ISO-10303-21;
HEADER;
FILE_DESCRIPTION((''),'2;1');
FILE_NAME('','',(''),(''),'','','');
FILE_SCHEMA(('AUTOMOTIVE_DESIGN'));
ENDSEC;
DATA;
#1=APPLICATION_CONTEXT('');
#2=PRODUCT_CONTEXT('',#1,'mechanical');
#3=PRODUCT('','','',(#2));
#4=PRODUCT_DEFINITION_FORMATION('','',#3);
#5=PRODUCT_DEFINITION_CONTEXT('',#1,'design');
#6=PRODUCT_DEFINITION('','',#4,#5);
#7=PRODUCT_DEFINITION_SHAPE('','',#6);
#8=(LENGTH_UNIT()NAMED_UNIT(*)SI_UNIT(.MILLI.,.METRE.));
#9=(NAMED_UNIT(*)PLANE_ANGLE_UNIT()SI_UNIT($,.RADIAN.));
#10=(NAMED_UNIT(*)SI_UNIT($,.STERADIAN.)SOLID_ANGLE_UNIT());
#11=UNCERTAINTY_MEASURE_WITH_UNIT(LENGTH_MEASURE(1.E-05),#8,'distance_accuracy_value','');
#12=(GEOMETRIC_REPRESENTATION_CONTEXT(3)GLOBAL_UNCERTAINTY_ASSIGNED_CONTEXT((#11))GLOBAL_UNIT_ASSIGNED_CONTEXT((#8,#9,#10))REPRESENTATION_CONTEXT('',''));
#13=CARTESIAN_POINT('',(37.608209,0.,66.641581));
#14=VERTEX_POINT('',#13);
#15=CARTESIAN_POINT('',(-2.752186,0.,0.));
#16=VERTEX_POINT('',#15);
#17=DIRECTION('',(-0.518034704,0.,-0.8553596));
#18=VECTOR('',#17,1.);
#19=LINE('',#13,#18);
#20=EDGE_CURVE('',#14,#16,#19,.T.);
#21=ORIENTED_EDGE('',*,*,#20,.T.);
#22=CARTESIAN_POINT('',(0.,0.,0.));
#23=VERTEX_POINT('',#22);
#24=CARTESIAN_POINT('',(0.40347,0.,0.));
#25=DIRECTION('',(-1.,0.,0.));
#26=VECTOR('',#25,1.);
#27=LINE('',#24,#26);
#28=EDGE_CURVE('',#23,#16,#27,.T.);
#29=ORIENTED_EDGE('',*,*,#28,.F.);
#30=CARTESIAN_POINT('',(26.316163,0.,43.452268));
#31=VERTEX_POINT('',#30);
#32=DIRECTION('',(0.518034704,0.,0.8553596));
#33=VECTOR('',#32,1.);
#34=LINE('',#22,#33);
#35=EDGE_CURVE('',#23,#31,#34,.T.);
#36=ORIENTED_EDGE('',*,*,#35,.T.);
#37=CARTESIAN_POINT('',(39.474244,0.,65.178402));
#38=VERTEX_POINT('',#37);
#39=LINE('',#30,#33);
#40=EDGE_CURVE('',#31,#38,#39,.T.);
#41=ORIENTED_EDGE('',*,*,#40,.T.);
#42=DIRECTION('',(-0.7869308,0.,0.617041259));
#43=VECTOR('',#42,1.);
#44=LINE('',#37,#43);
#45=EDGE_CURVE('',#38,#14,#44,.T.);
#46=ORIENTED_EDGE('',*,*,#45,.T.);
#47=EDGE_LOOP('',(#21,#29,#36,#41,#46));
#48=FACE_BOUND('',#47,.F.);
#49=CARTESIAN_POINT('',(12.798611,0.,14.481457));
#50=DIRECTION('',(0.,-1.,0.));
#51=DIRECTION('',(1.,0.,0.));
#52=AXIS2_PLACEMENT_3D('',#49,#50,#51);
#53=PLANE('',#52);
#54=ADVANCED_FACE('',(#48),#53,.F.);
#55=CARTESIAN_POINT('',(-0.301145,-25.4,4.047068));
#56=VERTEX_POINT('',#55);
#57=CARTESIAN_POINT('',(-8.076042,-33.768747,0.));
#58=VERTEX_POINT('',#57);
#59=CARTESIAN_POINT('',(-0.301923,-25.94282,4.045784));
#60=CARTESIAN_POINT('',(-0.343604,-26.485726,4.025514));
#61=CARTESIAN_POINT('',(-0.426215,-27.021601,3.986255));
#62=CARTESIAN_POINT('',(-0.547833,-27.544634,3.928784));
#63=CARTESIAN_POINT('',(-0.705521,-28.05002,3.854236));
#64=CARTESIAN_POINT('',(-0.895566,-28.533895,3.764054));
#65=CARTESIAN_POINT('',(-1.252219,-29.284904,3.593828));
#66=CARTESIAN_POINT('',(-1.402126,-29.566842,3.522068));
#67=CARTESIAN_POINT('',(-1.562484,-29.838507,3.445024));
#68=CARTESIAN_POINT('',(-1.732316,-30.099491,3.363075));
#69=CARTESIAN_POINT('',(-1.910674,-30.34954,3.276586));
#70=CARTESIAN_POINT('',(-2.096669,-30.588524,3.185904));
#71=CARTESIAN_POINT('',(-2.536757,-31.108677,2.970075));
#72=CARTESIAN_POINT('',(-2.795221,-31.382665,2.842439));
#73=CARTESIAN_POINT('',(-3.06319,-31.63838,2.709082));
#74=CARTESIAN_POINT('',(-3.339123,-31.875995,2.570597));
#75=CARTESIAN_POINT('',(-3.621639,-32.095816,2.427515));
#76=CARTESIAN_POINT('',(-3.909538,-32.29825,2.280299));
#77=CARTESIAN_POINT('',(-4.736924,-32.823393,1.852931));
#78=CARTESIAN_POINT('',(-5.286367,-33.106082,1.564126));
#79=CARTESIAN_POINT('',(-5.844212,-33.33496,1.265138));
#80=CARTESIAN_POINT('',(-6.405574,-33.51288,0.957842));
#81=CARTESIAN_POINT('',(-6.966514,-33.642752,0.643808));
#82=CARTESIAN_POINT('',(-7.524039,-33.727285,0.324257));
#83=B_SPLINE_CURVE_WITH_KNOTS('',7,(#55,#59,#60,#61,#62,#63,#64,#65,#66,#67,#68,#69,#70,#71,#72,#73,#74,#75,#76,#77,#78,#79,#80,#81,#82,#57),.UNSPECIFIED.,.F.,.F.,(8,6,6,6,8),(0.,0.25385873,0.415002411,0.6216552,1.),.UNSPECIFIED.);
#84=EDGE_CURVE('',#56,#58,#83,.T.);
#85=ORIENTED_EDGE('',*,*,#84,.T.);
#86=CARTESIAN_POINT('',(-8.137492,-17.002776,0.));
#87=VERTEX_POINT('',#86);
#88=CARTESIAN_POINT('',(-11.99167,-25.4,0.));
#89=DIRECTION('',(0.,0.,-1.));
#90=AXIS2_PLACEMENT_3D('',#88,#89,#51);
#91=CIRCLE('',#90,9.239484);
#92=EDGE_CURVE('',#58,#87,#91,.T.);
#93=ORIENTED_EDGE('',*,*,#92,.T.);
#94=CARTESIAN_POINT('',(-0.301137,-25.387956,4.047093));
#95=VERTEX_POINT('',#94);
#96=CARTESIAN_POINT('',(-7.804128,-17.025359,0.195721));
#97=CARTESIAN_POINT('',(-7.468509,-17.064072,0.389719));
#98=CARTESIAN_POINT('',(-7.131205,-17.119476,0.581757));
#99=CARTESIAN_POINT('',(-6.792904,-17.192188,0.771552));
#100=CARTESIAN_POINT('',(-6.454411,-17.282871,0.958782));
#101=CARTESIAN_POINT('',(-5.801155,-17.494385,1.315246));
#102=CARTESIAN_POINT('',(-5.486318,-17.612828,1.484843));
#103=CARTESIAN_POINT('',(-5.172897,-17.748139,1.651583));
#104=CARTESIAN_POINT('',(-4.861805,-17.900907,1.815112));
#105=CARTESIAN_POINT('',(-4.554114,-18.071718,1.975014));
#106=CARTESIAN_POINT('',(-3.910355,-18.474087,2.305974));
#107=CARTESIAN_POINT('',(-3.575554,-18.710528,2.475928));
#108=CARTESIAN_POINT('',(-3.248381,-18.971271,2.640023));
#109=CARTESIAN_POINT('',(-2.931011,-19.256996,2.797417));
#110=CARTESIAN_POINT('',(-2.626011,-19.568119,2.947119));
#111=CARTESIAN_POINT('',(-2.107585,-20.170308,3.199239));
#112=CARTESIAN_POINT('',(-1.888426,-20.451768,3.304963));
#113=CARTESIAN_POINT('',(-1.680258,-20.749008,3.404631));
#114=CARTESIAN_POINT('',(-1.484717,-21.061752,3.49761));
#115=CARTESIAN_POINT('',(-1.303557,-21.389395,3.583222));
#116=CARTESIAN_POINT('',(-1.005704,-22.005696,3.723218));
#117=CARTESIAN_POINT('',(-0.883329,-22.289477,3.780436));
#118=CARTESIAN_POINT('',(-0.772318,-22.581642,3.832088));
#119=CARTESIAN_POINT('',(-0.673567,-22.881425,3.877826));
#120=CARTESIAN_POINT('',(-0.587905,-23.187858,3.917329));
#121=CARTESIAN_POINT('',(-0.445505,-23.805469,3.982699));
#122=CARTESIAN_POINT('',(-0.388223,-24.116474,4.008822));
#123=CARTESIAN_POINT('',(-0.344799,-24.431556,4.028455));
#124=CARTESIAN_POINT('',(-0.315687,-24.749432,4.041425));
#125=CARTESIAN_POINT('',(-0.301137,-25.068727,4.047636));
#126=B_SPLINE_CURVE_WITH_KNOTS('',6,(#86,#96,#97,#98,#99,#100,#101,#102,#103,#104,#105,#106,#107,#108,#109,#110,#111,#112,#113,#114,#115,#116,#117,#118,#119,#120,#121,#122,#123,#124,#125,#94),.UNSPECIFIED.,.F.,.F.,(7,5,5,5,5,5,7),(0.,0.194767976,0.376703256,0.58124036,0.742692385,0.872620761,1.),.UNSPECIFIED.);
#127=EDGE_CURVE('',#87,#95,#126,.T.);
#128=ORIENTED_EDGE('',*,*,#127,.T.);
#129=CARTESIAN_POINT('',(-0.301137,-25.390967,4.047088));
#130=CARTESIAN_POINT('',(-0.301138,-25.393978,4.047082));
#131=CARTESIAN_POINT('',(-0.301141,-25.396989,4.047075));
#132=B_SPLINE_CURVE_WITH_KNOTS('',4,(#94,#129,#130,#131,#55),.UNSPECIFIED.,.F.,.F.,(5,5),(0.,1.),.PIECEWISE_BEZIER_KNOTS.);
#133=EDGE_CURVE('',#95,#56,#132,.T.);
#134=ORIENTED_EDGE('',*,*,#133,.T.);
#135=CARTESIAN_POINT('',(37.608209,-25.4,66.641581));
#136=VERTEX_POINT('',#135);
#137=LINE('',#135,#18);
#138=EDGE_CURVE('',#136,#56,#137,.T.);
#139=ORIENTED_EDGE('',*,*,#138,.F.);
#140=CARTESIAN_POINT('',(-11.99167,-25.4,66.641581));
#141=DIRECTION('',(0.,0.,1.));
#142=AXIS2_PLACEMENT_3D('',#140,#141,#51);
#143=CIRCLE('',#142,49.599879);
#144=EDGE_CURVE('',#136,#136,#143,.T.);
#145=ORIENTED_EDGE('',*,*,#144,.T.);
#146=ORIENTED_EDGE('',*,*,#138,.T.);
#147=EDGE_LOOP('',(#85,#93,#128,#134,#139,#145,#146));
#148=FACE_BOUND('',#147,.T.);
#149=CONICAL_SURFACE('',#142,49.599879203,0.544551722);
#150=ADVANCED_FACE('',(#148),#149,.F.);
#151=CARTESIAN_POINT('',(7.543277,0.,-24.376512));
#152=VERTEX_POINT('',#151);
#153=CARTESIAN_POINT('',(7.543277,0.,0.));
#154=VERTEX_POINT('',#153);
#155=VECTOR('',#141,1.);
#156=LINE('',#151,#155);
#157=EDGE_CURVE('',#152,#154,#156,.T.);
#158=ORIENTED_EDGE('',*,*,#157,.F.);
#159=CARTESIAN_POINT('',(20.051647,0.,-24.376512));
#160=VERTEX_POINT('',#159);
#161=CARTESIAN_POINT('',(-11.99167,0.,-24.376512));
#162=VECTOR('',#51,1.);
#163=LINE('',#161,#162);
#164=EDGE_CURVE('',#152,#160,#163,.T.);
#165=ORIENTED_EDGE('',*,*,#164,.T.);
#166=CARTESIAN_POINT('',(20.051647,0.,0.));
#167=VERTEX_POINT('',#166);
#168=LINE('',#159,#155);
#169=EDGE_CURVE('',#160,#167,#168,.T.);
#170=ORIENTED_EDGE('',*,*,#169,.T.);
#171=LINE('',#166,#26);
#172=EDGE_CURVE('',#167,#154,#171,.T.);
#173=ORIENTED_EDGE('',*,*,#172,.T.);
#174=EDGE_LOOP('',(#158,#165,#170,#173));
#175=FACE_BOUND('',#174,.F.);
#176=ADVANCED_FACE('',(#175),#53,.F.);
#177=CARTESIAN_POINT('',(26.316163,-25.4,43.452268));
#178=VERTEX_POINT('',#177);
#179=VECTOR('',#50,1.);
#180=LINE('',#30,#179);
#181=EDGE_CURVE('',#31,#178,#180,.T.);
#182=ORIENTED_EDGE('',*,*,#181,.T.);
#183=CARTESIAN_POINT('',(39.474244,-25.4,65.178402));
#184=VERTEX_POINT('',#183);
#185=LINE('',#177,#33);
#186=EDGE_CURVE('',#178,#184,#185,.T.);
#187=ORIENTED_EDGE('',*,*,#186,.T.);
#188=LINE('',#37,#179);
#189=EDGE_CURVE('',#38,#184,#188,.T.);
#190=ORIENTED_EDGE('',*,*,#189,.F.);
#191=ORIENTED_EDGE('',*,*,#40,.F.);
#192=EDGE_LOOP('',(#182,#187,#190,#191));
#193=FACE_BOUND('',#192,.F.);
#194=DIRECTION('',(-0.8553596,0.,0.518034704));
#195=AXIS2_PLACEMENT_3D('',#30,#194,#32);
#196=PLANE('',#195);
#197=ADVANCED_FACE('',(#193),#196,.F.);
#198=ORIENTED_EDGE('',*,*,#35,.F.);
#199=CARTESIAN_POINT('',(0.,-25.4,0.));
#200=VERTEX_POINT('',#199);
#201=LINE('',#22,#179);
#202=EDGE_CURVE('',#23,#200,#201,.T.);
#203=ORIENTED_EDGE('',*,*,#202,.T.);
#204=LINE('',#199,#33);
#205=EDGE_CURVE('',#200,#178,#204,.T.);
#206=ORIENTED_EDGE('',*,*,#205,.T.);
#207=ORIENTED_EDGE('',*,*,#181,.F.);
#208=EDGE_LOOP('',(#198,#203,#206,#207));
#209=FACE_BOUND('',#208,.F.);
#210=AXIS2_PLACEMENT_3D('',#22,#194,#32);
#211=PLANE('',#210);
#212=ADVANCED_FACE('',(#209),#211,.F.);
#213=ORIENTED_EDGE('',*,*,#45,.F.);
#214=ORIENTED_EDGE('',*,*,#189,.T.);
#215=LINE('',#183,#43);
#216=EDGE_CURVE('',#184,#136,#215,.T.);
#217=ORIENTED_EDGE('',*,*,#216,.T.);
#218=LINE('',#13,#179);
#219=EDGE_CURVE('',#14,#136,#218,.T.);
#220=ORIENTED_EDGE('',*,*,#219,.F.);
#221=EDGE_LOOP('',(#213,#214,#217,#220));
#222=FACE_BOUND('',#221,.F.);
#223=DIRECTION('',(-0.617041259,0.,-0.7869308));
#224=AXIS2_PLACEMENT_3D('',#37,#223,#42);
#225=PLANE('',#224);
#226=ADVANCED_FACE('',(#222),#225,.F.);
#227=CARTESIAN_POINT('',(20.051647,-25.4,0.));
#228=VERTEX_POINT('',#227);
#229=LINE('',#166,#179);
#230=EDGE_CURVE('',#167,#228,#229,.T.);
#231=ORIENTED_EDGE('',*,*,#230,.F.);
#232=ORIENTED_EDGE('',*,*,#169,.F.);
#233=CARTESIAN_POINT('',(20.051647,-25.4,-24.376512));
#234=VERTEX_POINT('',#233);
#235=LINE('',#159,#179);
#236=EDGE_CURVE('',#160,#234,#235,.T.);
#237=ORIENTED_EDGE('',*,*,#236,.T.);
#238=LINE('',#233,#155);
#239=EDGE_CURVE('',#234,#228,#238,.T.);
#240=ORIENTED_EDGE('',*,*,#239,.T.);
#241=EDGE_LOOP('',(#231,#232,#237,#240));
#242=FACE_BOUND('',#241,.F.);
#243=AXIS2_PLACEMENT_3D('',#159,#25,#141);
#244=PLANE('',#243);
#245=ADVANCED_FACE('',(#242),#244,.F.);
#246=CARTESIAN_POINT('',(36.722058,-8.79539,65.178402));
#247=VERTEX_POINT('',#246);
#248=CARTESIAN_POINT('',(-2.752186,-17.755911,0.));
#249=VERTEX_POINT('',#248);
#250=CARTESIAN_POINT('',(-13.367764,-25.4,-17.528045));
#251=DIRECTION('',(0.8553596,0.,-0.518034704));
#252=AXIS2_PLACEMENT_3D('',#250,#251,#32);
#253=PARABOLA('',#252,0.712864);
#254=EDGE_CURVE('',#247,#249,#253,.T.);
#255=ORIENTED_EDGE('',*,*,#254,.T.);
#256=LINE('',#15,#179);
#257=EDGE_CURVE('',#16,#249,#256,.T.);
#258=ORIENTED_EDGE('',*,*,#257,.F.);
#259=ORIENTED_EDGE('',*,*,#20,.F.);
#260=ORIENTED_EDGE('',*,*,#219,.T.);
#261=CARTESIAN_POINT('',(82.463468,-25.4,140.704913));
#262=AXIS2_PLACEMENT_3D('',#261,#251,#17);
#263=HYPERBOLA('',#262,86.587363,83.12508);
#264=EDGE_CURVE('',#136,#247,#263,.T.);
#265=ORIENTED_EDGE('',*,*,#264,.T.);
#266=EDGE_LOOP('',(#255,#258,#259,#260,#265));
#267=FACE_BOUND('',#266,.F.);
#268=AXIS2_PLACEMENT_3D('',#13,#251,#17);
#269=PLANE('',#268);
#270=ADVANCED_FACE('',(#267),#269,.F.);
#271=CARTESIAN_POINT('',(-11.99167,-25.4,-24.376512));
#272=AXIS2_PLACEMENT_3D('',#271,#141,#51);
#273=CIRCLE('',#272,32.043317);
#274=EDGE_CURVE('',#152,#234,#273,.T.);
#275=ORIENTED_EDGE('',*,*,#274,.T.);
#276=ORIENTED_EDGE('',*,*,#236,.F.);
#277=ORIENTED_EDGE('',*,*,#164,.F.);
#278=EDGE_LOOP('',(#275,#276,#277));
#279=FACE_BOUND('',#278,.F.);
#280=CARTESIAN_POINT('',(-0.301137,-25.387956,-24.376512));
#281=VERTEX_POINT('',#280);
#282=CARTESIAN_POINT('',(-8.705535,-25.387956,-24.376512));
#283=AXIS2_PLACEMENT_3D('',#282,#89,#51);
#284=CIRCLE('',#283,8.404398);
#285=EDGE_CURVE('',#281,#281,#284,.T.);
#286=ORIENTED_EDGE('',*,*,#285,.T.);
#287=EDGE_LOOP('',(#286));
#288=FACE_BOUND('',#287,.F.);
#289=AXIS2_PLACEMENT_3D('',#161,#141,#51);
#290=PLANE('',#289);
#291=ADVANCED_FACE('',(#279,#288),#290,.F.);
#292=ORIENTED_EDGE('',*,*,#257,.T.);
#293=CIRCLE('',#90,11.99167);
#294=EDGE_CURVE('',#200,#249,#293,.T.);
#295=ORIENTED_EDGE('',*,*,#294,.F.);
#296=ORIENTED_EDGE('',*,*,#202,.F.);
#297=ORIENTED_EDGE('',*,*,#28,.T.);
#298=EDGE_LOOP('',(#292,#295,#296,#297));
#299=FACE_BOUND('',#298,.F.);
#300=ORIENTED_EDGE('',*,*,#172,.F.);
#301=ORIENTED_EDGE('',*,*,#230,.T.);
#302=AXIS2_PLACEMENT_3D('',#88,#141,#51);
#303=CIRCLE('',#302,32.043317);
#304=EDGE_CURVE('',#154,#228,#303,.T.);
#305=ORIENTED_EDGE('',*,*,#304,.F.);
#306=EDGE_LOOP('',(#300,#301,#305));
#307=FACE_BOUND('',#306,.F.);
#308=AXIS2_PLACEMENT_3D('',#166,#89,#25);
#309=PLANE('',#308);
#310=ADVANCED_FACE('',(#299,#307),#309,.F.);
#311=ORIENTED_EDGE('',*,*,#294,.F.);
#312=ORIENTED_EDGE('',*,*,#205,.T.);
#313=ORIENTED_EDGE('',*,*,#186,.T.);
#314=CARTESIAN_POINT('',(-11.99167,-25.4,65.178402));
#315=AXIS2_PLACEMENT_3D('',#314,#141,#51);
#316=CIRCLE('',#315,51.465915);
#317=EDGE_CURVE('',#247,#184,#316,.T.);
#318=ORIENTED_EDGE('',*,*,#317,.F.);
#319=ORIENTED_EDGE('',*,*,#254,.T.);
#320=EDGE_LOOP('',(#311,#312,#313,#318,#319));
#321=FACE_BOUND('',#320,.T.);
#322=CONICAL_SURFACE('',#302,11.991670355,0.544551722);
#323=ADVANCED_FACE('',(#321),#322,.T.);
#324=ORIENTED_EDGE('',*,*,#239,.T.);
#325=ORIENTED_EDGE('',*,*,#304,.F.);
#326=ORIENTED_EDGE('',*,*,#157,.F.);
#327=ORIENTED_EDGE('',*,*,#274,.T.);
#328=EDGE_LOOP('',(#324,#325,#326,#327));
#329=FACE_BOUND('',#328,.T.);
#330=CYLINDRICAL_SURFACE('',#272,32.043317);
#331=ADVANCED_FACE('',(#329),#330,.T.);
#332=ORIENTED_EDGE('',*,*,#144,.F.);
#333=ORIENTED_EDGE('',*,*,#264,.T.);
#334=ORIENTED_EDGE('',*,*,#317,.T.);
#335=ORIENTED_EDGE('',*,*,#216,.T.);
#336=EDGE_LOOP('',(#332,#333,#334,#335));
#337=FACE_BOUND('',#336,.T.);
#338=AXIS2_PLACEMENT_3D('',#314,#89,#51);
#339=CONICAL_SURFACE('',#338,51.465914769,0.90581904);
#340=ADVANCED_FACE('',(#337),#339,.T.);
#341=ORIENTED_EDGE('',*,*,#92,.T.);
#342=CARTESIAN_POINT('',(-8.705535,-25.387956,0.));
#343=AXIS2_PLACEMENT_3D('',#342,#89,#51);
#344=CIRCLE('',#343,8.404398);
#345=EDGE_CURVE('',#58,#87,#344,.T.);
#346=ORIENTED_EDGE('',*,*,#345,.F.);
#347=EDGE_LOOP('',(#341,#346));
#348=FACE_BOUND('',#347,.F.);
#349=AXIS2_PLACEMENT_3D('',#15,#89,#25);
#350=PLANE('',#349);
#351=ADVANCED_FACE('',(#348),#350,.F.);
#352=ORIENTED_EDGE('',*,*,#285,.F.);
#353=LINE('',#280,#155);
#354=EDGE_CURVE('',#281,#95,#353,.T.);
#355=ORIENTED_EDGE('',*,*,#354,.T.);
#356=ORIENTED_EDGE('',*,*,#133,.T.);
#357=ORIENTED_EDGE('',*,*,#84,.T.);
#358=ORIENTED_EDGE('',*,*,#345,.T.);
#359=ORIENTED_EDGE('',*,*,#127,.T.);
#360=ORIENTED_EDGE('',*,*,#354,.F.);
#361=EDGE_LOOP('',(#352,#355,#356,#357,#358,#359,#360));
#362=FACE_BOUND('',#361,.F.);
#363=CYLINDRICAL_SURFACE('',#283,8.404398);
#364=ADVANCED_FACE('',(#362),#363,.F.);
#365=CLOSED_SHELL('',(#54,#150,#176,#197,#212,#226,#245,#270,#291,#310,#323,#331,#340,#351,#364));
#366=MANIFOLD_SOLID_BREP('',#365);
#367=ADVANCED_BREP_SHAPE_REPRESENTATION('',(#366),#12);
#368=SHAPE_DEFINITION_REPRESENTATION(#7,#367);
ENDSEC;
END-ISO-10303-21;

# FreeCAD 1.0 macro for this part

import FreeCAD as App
import Part
import Sketcher
Q = App.Units.Quantity

doc = App.newDocument("Part")
params = doc.addObject("Spreadsheet::Sheet", "Params")
for row, (alias, value) in enumerate([
    ("sketch1_length", "2 in"),
    ("sketch1_length2", "1 in"),
    ("pad1_length", "1 in"),
    ("sketch2_length", "3 in"),
    ("revolution_angle", "360 deg"),
    ("pocket1_length", "2 in"),
], start=1):
    params.set(f"A{row}", alias)
    params.set(f"B{row}", "=" + value)
    params.setAlias(f"B{row}", alias)

body = doc.addObject("PartDesign::Body", "Body")

# Sketch on XZ plane
sketch1 = doc.addObject("Sketcher::SketchObject", "Sketch")
body.addObject(sketch1)
sketch1.AttachmentSupport = (doc.XZ_Plane, [""])
sketch1.MapMode = "FlatFace"
sketch1.addGeometry([
    Part.LineSegment(App.Vector(20.051647, 0, 0), App.Vector(0, 0, 0)),  # 0
    Part.LineSegment(App.Vector(0, 0, 0), App.Vector(26.316163, 43.452268, 0)),  # 1
    Part.LineSegment(App.Vector(26.316163, 43.452268, 0), App.Vector(39.474244, 65.178402, 0)),  # 2
    Part.LineSegment(App.Vector(39.474244, 65.178402, 0), App.Vector(37.608209, 66.641581, 0)),  # 3
    Part.LineSegment(App.Vector(37.608209, 66.641581, 0), App.Vector(-2.752186, 0, 0)),  # 4
    Part.LineSegment(App.Vector(-2.752186, 0, 0), App.Vector(-11.99167, 0, 0)),  # 5
    Part.LineSegment(App.Vector(-11.99167, 0, 0), App.Vector(-11.99167, -24.376512, 0)),  # 6
    Part.LineSegment(App.Vector(-11.99167, -24.376512, 0), App.Vector(20.051647, -24.376512, 0)),  # 7
    Part.LineSegment(App.Vector(20.051647, -24.376512, 0), App.Vector(20.051647, 0, 0)),  # 8
], False)
sketch1.addConstraint([
    Sketcher.Constraint("Coincident", 0, 2, 1, 1),
    Sketcher.Constraint("Coincident", 1, 2, 2, 1),
    Sketcher.Constraint("Coincident", 2, 2, 3, 1),
    Sketcher.Constraint("Coincident", 3, 2, 4, 1),
    Sketcher.Constraint("Coincident", 4, 2, 5, 1),
    Sketcher.Constraint("Coincident", 5, 2, 6, 1),
    Sketcher.Constraint("Coincident", 6, 2, 7, 1),
    Sketcher.Constraint("Coincident", 7, 2, 8, 1),
    Sketcher.Constraint("Coincident", 8, 2, 0, 1),
    Sketcher.Constraint("Horizontal", 0),
    Sketcher.Constraint("Horizontal", 5),
    Sketcher.Constraint("Vertical", 6),
    Sketcher.Constraint("Horizontal", 7),
    Sketcher.Constraint("Vertical", 8),
    Sketcher.Constraint("Coincident", 0, 2, -1, 1),
    Sketcher.Constraint("PointOnObject", 4, 2, -1),
    Sketcher.Constraint("Parallel", 1, 2),
    Sketcher.Constraint("Parallel", 2, 4),
    Sketcher.Constraint("Distance", 1, Q("2 in")),
    Sketcher.Constraint("Distance", 2, Q("1 in")),
    Sketcher.Constraint("Distance", 4, 77.910601),
    Sketcher.Constraint("DistanceY", 6, 2, 6, 1, 24.376512),
    Sketcher.Constraint("DistanceY", -1, 1, 2, 2, 65.178402),
    Sketcher.Constraint("DistanceX", 0, 2, 0, 1, 20.051647),
    Sketcher.Constraint("DistanceX", 5, 2, 5, 1, 9.239484),
    Sketcher.Constraint("DistanceX", 7, 1, 7, 2, 32.043317),
])
sketch1.setExpression("Constraints[18]", "Params.sketch1_length")
sketch1.setExpression("Constraints[19]", "Params.sketch1_length2")
pad1 = doc.addObject("PartDesign::Pad", "Pad")
body.addObject(pad1)
pad1.Profile = sketch1
pad1.setExpression("Length", "Params.pad1_length")

# Sketch on XZ plane
sketch2 = doc.addObject("Sketcher::SketchObject", "Sketch001")
body.addObject(sketch2)
sketch2.AttachmentSupport = (doc.XZ_Plane, [""])
sketch2.MapMode = "FlatFace"
sketch2.AttachmentOffset = App.Placement(App.Vector(0, 0, 1 * 25.4), App.Rotation())
sketch2.addGeometry([
    Part.LineSegment(App.Vector(20.051647, 0, 0), App.Vector(0, 0, 0)),  # 0
    Part.LineSegment(App.Vector(0, 0, 0), App.Vector(39.474244, 65.178402, 0)),  # 1
    Part.LineSegment(App.Vector(39.474244, 65.178402, 0), App.Vector(37.608209, 66.641581, 0)),  # 2
    Part.LineSegment(App.Vector(37.608209, 66.641581, 0), App.Vector(-2.752186, 0, 0)),  # 3
    Part.LineSegment(App.Vector(-2.752186, 0, 0), App.Vector(-11.99167, 0, 0)),  # 4
    Part.LineSegment(App.Vector(-11.99167, 0, 0), App.Vector(-11.99167, -24.376512, 0)),  # 5
    Part.LineSegment(App.Vector(-11.99167, -24.376512, 0), App.Vector(20.051647, -24.376512, 0)),  # 6
    Part.LineSegment(App.Vector(20.051647, -24.376512, 0), App.Vector(20.051647, 0, 0)),  # 7
], False)
sketch2.addGeometry(Part.LineSegment(App.Vector(-11.99167, -24.376512, 0), App.Vector(-11.99167, 66.641581, 0)), True)  # axis
sketch2.addConstraint([
    Sketcher.Constraint("Coincident", 0, 2, 1, 1),
    Sketcher.Constraint("Coincident", 1, 2, 2, 1),
    Sketcher.Constraint("Coincident", 2, 2, 3, 1),
    Sketcher.Constraint("Coincident", 3, 2, 4, 1),
    Sketcher.Constraint("Coincident", 4, 2, 5, 1),
    Sketcher.Constraint("Coincident", 5, 2, 6, 1),
    Sketcher.Constraint("Coincident", 6, 2, 7, 1),
    Sketcher.Constraint("Coincident", 7, 2, 0, 1),
    Sketcher.Constraint("Horizontal", 0),
    Sketcher.Constraint("Horizontal", 4),
    Sketcher.Constraint("Vertical", 5),
    Sketcher.Constraint("Horizontal", 6),
    Sketcher.Constraint("Vertical", 7),
    Sketcher.Constraint("Vertical", 8),
    Sketcher.Constraint("Coincident", 0, 2, -1, 1),
    Sketcher.Constraint("Coincident", 8, 1, 5, 2),
    Sketcher.Constraint("PointOnObject", 3, 2, -1),
    Sketcher.Constraint("Parallel", 1, 3),
    Sketcher.Constraint("Horizontal", 2, 2, 8, 2),
    Sketcher.Constraint("Distance", 1, Q("3 in")),
    Sketcher.Constraint("Distance", 3, 77.910601),
    Sketcher.Constraint("DistanceY", 5, 2, 5, 1, 24.376512),
    Sketcher.Constraint("DistanceY", -1, 1, 1, 2, 65.178402),
    Sketcher.Constraint("DistanceX", 0, 2, 0, 1, 20.051647),
    Sketcher.Constraint("DistanceX", 4, 2, 4, 1, 9.239484),
    Sketcher.Constraint("DistanceX", 6, 1, 6, 2, 32.043317),
])
sketch2.setExpression("Constraints[19]", "Params.sketch2_length")
revolution = doc.addObject("PartDesign::Revolution", "Revolution")
body.addObject(revolution)
revolution.Profile = sketch2
revolution.ReferenceAxis = (sketch2, ["Axis0"])
revolution.setExpression("Angle", "Params.revolution_angle")

# Sketch on XY plane
sketch3 = doc.addObject("Sketcher::SketchObject", "Sketch002")
body.addObject(sketch3)
sketch3.AttachmentSupport = (doc.XY_Plane, [""])
sketch3.MapMode = "FlatFace"
sketch3.AttachmentOffset = App.Placement(App.Vector(0, 0, -24.376512), App.Rotation())
sketch3.addGeometry(Part.Circle(App.Vector(-8.705535, -25.387956, 0), App.Vector(0, 0, 1), 8.404398), False)
sketch3.addConstraint([
    Sketcher.Constraint("Diameter", 0, 16.808797),
    Sketcher.Constraint("DistanceX", 0, 3, -1, 1, 8.705535),
    Sketcher.Constraint("DistanceY", 0, 3, -1, 1, 25.387956),
])
pocket1 = doc.addObject("PartDesign::Pocket", "Pocket")
body.addObject(pocket1)
pocket1.Profile = sketch3
pocket1.setExpression("Length", "Params.pocket1_length")
pocket1.Reversed = True

doc.recompute()
